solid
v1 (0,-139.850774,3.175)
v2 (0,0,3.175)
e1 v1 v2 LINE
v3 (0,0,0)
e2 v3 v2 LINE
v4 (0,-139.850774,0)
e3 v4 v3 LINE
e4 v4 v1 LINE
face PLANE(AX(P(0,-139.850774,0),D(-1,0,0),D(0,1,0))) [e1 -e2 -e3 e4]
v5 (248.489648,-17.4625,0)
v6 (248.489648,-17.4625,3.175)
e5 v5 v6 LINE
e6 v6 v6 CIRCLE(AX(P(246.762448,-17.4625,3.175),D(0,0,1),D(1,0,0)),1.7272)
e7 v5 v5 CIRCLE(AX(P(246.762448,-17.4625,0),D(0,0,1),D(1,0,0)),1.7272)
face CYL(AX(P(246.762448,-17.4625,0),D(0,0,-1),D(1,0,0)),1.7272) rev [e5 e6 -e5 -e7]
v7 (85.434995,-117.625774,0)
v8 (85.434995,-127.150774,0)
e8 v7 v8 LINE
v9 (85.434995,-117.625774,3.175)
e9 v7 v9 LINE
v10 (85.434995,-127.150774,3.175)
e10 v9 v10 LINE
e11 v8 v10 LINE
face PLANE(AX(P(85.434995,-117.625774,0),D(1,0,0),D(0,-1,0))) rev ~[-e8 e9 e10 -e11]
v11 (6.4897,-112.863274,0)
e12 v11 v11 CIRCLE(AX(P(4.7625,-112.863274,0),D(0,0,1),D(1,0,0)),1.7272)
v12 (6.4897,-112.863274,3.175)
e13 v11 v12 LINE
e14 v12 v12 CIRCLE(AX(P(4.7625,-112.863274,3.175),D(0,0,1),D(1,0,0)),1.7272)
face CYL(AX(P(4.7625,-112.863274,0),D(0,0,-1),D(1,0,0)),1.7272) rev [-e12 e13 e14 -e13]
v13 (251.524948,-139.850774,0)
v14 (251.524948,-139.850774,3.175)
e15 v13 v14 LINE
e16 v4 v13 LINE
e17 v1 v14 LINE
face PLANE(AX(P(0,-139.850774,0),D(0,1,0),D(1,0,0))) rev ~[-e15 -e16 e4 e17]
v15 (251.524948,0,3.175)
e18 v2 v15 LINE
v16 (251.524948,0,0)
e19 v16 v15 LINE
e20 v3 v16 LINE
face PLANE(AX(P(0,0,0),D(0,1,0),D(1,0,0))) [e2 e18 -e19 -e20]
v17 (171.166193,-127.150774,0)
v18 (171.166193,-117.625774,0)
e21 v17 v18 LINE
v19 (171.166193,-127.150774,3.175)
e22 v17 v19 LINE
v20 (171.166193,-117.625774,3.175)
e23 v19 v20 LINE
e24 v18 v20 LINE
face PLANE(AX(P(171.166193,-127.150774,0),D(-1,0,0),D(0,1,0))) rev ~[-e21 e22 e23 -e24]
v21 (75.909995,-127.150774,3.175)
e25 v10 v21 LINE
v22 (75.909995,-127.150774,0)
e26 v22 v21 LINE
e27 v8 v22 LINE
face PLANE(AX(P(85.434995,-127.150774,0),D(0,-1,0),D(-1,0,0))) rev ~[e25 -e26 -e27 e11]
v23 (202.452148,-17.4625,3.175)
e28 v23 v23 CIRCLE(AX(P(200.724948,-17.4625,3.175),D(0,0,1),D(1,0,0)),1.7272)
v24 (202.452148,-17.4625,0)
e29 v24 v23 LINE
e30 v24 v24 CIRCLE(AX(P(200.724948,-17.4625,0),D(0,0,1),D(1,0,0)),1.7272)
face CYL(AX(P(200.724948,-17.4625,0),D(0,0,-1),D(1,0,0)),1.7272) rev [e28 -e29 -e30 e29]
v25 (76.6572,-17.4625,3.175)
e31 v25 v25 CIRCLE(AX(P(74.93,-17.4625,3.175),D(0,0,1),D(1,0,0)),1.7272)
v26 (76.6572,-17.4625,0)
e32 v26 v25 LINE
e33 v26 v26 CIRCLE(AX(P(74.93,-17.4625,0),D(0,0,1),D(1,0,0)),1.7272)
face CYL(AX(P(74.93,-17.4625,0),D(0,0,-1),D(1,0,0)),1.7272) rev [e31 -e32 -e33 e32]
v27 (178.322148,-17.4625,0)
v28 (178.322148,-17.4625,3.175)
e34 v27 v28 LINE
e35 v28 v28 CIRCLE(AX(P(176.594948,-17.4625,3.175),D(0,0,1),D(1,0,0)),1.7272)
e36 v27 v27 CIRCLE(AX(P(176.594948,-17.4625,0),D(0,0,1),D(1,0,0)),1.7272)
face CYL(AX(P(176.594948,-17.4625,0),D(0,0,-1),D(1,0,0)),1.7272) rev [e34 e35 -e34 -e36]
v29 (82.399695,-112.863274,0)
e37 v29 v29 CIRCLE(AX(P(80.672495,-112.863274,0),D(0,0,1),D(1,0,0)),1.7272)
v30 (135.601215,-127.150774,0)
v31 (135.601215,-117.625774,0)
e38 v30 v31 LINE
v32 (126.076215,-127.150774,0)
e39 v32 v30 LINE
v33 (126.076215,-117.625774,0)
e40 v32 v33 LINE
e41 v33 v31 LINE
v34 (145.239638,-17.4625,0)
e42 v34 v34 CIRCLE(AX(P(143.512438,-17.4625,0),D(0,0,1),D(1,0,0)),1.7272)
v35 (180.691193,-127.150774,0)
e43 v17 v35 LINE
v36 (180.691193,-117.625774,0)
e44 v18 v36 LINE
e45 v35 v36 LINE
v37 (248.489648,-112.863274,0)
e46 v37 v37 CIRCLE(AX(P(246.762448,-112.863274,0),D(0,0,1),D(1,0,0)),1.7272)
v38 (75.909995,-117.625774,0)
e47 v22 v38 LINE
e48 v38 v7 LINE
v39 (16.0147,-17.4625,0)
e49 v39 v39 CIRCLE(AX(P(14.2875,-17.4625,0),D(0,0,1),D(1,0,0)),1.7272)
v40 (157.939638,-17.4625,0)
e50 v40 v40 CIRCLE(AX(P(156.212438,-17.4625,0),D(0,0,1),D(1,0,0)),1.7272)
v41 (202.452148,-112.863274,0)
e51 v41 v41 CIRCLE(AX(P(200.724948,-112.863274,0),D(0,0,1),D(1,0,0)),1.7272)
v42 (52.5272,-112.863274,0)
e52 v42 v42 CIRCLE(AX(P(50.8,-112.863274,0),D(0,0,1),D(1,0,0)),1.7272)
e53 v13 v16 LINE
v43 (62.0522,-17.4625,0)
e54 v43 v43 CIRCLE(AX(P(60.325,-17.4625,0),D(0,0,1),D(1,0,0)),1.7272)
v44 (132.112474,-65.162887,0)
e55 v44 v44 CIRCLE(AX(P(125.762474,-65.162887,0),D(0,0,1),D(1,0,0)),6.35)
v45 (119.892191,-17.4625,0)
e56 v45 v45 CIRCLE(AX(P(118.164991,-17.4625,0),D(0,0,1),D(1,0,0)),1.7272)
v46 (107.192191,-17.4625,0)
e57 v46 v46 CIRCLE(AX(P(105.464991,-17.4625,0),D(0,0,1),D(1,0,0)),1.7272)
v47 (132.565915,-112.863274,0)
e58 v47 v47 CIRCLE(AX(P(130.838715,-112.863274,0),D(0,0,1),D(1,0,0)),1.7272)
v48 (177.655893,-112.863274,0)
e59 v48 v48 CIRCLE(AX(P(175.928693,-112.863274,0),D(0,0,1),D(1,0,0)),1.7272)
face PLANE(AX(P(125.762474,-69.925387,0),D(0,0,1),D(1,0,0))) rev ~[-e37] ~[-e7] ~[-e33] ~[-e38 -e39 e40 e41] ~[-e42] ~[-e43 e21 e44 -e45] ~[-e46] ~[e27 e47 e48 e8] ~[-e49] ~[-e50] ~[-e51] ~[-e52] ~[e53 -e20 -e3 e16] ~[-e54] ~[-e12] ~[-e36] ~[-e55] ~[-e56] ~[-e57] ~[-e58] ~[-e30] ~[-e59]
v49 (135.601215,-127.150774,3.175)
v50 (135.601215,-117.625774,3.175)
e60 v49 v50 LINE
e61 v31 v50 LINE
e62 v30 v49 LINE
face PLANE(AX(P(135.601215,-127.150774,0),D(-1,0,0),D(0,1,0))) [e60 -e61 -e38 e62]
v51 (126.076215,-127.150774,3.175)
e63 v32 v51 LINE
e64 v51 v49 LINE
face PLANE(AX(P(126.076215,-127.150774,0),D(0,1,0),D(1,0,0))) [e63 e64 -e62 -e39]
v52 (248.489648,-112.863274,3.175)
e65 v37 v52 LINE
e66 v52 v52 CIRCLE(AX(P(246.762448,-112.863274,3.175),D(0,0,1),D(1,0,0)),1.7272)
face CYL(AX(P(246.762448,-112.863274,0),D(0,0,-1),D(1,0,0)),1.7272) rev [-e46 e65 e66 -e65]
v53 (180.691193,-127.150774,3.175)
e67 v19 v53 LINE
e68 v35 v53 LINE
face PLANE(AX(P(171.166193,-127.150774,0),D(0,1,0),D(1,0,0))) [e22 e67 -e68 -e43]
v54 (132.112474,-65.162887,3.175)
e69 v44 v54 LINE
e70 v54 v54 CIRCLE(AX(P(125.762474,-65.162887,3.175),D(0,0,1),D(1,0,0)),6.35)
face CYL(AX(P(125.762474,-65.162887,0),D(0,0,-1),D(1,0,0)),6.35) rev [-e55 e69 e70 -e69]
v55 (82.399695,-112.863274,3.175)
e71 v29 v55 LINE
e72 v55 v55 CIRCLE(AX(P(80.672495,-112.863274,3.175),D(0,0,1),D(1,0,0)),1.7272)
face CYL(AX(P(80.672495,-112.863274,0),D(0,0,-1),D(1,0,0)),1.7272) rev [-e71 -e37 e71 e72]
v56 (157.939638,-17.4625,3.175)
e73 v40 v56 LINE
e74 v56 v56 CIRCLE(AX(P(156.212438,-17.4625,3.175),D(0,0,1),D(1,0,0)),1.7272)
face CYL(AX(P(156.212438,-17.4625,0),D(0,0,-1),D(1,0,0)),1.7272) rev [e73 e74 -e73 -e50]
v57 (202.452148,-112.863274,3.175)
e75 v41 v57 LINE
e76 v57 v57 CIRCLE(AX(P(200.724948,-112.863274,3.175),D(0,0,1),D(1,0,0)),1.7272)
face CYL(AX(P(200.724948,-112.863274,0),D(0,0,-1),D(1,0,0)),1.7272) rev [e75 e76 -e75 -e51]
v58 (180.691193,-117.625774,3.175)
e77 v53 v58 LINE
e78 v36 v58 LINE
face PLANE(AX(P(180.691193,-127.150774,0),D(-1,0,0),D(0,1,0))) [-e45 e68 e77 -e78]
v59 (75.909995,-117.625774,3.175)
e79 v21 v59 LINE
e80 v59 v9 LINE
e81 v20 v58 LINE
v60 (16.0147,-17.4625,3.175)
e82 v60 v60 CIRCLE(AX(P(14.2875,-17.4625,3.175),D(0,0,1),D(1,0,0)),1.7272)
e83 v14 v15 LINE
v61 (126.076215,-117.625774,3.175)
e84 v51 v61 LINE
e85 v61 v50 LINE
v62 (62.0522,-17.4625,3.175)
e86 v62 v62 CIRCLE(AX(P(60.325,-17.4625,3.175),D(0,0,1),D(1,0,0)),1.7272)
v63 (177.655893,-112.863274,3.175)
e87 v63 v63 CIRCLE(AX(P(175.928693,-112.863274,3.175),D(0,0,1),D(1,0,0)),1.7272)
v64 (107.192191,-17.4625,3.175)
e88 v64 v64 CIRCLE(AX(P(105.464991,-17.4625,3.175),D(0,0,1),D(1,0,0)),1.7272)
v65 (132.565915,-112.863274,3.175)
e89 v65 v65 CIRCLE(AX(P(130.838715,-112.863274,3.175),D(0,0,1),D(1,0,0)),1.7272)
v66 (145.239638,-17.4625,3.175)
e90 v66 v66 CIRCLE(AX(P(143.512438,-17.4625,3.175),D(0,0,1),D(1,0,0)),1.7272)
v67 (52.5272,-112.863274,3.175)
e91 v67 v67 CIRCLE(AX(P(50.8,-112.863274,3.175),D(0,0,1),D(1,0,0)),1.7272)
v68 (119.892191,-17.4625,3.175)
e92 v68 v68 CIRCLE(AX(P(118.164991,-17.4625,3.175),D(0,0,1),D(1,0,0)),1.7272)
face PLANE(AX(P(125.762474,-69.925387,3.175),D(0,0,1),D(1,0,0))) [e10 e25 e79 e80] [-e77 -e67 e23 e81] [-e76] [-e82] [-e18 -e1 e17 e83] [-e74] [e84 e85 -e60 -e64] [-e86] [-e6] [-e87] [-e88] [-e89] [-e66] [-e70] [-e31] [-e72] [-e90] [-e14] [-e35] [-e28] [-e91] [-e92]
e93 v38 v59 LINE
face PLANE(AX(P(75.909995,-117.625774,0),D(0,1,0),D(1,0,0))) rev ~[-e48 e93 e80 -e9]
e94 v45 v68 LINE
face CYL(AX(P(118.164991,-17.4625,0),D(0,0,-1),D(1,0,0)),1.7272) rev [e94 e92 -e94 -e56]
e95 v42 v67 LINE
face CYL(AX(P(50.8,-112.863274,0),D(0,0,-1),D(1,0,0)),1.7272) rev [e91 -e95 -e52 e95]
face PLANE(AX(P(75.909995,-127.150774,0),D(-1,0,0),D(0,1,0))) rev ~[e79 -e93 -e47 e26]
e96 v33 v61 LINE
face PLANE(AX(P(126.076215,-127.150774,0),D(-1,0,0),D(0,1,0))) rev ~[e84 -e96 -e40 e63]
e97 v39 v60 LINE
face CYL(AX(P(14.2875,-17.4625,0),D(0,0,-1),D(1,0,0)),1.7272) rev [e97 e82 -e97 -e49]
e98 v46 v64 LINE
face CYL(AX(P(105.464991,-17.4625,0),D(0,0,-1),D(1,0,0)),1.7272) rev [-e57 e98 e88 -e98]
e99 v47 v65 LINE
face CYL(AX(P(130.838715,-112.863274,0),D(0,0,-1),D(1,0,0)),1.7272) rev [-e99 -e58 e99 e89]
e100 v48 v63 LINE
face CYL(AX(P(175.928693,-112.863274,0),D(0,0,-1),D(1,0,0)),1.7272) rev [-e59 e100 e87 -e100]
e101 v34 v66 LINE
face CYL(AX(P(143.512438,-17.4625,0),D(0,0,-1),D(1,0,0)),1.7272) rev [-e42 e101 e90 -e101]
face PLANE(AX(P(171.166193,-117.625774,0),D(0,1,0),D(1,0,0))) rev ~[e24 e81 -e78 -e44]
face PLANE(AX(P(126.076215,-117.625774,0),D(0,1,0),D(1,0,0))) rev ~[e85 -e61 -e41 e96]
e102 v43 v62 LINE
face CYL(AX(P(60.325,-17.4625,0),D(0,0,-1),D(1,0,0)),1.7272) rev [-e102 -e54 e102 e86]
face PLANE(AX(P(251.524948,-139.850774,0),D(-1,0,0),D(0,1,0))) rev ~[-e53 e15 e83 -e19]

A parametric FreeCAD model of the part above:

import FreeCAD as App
import Part
import Sketcher
from FreeCAD import Vector
Q = App.Units.Quantity


def add_polygon(sketch, points):
    """Adds a closed chain of lines whose ends are joined by coincident constraints."""
    first, n = sketch.GeometryCount, len(points)
    for a, b in zip(points, points[1:] + points[:1]):
        sketch.addGeometry(Part.LineSegment(App.Vector(*a, 0), App.Vector(*b, 0)), False)
    for i in range(n):
        sketch.addConstraint(Sketcher.Constraint("Coincident", first + i, 2, first + (i + 1) % n, 1))

doc = App.newDocument("Part")
body = doc.addObject("PartDesign::Body", "Body")

sketch1 = body.newObject("Sketcher::SketchObject", "Sketch")
sketch1.AttachmentSupport = (doc.getObject("XY_Plane"), [""])
sketch1.MapMode = "FlatFace"
add_polygon(sketch1, [(0, 0), (0, -139.9), (251.5, -139.9), (251.5, 0)])
sketch1.addGeometry(Part.Circle(Vector(4.8, -112.9, 0), Vector(0, 0, 1), 1.7), False)
sketch1.addGeometry(Part.Circle(Vector(50.8, -112.9, 0), Vector(0, 0, 1), 1.7), False)
add_polygon(sketch1, [(75.9, -117.6), (85.4, -117.6), (85.4, -127.2), (75.9, -127.2)])
sketch1.addGeometry(Part.Circle(Vector(80.7, -112.9, 0), Vector(0, 0, 1), 1.7), False)
add_polygon(sketch1, [(135.6, -127.2), (126.1, -127.2), (126.1, -117.6), (135.6, -117.6)])
add_polygon(sketch1, [(180.7, -127.2), (171.2, -127.2), (171.2, -117.6), (180.7, -117.6)])
sketch1.addGeometry(Part.Circle(Vector(130.8, -112.9, 0), Vector(0, 0, 1), 1.7), False)
sketch1.addGeometry(Part.Circle(Vector(175.9, -112.9, 0), Vector(0, 0, 1), 1.7), False)
sketch1.addGeometry(Part.Circle(Vector(200.7, -112.9, 0), Vector(0, 0, 1), 1.7), False)
sketch1.addGeometry(Part.Circle(Vector(246.8, -112.9, 0), Vector(0, 0, 1), 1.7), False)
sketch1.addGeometry(Part.Circle(Vector(125.8, -65.2, 0), Vector(0, 0, 1), 6.3), False)
sketch1.addGeometry(Part.Circle(Vector(14.3, -17.5, 0), Vector(0, 0, 1), 1.7), False)
sketch1.addGeometry(Part.Circle(Vector(60.3, -17.5, 0), Vector(0, 0, 1), 1.7), False)
sketch1.addGeometry(Part.Circle(Vector(74.9, -17.5, 0), Vector(0, 0, 1), 1.7), False)
sketch1.addGeometry(Part.Circle(Vector(105.5, -17.5, 0), Vector(0, 0, 1), 1.7), False)
sketch1.addGeometry(Part.Circle(Vector(118.2, -17.5, 0), Vector(0, 0, 1), 1.7), False)
sketch1.addGeometry(Part.Circle(Vector(143.5, -17.5, 0), Vector(0, 0, 1), 1.7), False)
sketch1.addGeometry(Part.Circle(Vector(156.2, -17.5, 0), Vector(0, 0, 1), 1.7), False)
sketch1.addGeometry(Part.Circle(Vector(176.6, -17.5, 0), Vector(0, 0, 1), 1.7), False)
sketch1.addGeometry(Part.Circle(Vector(200.7, -17.5, 0), Vector(0, 0, 1), 1.7), False)
sketch1.addGeometry(Part.Circle(Vector(246.8, -17.5, 0), Vector(0, 0, 1), 1.7), False)
sketch1.addConstraint([
    Sketcher.Constraint("Vertical", 0),
    Sketcher.Constraint("Horizontal", 1),
    Sketcher.Constraint("Vertical", 2),
    Sketcher.Constraint("Horizontal", 3),
    Sketcher.Constraint("Horizontal", 6),
    Sketcher.Constraint("Vertical", 7),
    Sketcher.Constraint("Horizontal", 8),
    Sketcher.Constraint("Vertical", 9),
    Sketcher.Constraint("Horizontal", 11),
    Sketcher.Constraint("Vertical", 12),
    Sketcher.Constraint("Horizontal", 13),
    Sketcher.Constraint("Vertical", 14),
    Sketcher.Constraint("Horizontal", 15),
    Sketcher.Constraint("Vertical", 16),
    Sketcher.Constraint("Horizontal", 17),
    Sketcher.Constraint("Vertical", 18),
    Sketcher.Constraint("Coincident", 3, 2, -1, 1),
    Sketcher.Constraint("Equal", 4, 5),
    Sketcher.Constraint("Equal", 5, 10),
    Sketcher.Constraint("Equal", 10, 19),
    Sketcher.Constraint("Equal", 19, 20),
    Sketcher.Constraint("Equal", 20, 21),
    Sketcher.Constraint("Equal", 21, 22),
    Sketcher.Constraint("Equal", 22, 24),
    Sketcher.Constraint("Equal", 24, 25),
    Sketcher.Constraint("Equal", 25, 26),
    Sketcher.Constraint("Equal", 26, 27),
    Sketcher.Constraint("Equal", 27, 28),
    Sketcher.Constraint("Equal", 28, 29),
    Sketcher.Constraint("Equal", 29, 30),
    Sketcher.Constraint("Equal", 30, 31),
    Sketcher.Constraint("Equal", 31, 32),
    Sketcher.Constraint("Equal", 32, 33),
    Sketcher.Constraint("Horizontal", 4, 3, 5, 3),
    Sketcher.Constraint("Horizontal", 5, 3, 10, 3),
    Sketcher.Constraint("Horizontal", 10, 3, 19, 3),
    Sketcher.Constraint("Horizontal", 19, 3, 20, 3),
    Sketcher.Constraint("Horizontal", 20, 3, 21, 3),
    Sketcher.Constraint("Horizontal", 21, 3, 22, 3),
    Sketcher.Constraint("Horizontal", 24, 3, 25, 3),
    Sketcher.Constraint("Horizontal", 25, 3, 26, 3),
    Sketcher.Constraint("Horizontal", 26, 3, 27, 3),
    Sketcher.Constraint("Horizontal", 27, 3, 28, 3),
    Sketcher.Constraint("Horizontal", 28, 3, 29, 3),
    Sketcher.Constraint("Horizontal", 29, 3, 30, 3),
    Sketcher.Constraint("Horizontal", 30, 3, 31, 3),
    Sketcher.Constraint("Horizontal", 31, 3, 32, 3),
    Sketcher.Constraint("Horizontal", 32, 3, 33, 3),
    Sketcher.Constraint("Horizontal", 8, 2, 11, 2),
    Sketcher.Constraint("Horizontal", 9, 2, 12, 2),
    Sketcher.Constraint("Horizontal", 14, 2, 15, 2),
    Sketcher.Constraint("Horizontal", 13, 2, 16, 2),
    Sketcher.Constraint("Vertical", 21, 3, 32, 3),
    Sketcher.Constraint("Vertical", 22, 3, 33, 3),
    Sketcher.Constraint("Equal", 8, 11),
    Sketcher.Constraint("Equal", 13, 15),
    Sketcher.Constraint("Equal", 17, 7),
    Sketcher.Constraint("Diameter", 23, Q("0.5 in")),
    Sketcher.Constraint("Diameter", 4, Q("0.136 in")),
    Sketcher.Constraint("DistanceX", -1, 1, 5, 3, Q("2 in")),
    Sketcher.Constraint("DistanceX", 21, 3, 1, 2, Q("2 in")),
    Sketcher.Constraint("DistanceX", 27, 3, 28, 3, Q("0.5 in")),
    Sketcher.Constraint("DistanceX", 29, 3, 30, 3, Q("0.5 in")),
    Sketcher.Constraint("DistanceX", 6, 1, 6, 2, Q("0.375 in")),
    Sketcher.Constraint("DistanceX", -1, 1, 26, 3, Q("2.95 in")),
    Sketcher.Constraint("DistanceX", 31, 3, 32, 3, Q("0.95 in")),
    Sketcher.Constraint("DistanceX", -1, 1, 4, 3, Q("0.1875 in")),
    Sketcher.Constraint("DistanceX", -1, 1, 24, 3, Q("0.5625 in")),
    Sketcher.Constraint("DistanceY", 24, 3, -1, 1, Q("0.6875 in")),
    Sketcher.Constraint("DistanceX", -1, 1, 25, 3, Q("2.375 in")),
    Sketcher.Constraint("DistanceX", 21, 3, 22, 3, Q("1.8125 in")),
    Sketcher.Constraint("DistanceY", 0, 2, 4, 3, Q("1.0625 in")),
    Sketcher.Constraint("DistanceX", 10, 3, 6, 2, Q("0.1875 in")),
    Sketcher.Constraint("DistanceY", 6, 2, 10, 3, Q("0.1875 in")),
    Sketcher.Constraint("DistanceX", 11, 2, 19, 3, Q("0.1875 in")),
    Sketcher.Constraint("DistanceX", 15, 2, 20, 3, Q("0.1875 in")),
    Sketcher.Constraint("DistanceX", 1, 1, 1, 2, Q("251.524948 mm")),
    Sketcher.Constraint("DistanceX", 10, 3, 20, 3, Q("95.256198 mm")),
    Sketcher.Constraint("DistanceY", 0, 2, 0, 1, Q("139.850774 mm")),
    Sketcher.Constraint("DistanceX", -1, 1, 27, 3, Q("105.464991 mm")),
    Sketcher.Constraint("DistanceX", -1, 1, 29, 3, Q("143.512438 mm")),
    Sketcher.Constraint("DistanceX", 10, 3, 19, 3, Q("50.16622 mm")),
    Sketcher.Constraint("DistanceX", 23, 3, 19, 3, Q("5.076241 mm")),
    Sketcher.Constraint("DistanceX", -1, 1, 10, 3, Q("80.672495 mm")),
    Sketcher.Constraint("DistanceY", 23, 3, -1, 1, Q("65.162887 mm")),
])
pad1 = body.newObject("PartDesign::Pad", "Pad")
pad1.Profile = sketch1
pad1.Length = Q("0.125 in")

doc.recompute()
